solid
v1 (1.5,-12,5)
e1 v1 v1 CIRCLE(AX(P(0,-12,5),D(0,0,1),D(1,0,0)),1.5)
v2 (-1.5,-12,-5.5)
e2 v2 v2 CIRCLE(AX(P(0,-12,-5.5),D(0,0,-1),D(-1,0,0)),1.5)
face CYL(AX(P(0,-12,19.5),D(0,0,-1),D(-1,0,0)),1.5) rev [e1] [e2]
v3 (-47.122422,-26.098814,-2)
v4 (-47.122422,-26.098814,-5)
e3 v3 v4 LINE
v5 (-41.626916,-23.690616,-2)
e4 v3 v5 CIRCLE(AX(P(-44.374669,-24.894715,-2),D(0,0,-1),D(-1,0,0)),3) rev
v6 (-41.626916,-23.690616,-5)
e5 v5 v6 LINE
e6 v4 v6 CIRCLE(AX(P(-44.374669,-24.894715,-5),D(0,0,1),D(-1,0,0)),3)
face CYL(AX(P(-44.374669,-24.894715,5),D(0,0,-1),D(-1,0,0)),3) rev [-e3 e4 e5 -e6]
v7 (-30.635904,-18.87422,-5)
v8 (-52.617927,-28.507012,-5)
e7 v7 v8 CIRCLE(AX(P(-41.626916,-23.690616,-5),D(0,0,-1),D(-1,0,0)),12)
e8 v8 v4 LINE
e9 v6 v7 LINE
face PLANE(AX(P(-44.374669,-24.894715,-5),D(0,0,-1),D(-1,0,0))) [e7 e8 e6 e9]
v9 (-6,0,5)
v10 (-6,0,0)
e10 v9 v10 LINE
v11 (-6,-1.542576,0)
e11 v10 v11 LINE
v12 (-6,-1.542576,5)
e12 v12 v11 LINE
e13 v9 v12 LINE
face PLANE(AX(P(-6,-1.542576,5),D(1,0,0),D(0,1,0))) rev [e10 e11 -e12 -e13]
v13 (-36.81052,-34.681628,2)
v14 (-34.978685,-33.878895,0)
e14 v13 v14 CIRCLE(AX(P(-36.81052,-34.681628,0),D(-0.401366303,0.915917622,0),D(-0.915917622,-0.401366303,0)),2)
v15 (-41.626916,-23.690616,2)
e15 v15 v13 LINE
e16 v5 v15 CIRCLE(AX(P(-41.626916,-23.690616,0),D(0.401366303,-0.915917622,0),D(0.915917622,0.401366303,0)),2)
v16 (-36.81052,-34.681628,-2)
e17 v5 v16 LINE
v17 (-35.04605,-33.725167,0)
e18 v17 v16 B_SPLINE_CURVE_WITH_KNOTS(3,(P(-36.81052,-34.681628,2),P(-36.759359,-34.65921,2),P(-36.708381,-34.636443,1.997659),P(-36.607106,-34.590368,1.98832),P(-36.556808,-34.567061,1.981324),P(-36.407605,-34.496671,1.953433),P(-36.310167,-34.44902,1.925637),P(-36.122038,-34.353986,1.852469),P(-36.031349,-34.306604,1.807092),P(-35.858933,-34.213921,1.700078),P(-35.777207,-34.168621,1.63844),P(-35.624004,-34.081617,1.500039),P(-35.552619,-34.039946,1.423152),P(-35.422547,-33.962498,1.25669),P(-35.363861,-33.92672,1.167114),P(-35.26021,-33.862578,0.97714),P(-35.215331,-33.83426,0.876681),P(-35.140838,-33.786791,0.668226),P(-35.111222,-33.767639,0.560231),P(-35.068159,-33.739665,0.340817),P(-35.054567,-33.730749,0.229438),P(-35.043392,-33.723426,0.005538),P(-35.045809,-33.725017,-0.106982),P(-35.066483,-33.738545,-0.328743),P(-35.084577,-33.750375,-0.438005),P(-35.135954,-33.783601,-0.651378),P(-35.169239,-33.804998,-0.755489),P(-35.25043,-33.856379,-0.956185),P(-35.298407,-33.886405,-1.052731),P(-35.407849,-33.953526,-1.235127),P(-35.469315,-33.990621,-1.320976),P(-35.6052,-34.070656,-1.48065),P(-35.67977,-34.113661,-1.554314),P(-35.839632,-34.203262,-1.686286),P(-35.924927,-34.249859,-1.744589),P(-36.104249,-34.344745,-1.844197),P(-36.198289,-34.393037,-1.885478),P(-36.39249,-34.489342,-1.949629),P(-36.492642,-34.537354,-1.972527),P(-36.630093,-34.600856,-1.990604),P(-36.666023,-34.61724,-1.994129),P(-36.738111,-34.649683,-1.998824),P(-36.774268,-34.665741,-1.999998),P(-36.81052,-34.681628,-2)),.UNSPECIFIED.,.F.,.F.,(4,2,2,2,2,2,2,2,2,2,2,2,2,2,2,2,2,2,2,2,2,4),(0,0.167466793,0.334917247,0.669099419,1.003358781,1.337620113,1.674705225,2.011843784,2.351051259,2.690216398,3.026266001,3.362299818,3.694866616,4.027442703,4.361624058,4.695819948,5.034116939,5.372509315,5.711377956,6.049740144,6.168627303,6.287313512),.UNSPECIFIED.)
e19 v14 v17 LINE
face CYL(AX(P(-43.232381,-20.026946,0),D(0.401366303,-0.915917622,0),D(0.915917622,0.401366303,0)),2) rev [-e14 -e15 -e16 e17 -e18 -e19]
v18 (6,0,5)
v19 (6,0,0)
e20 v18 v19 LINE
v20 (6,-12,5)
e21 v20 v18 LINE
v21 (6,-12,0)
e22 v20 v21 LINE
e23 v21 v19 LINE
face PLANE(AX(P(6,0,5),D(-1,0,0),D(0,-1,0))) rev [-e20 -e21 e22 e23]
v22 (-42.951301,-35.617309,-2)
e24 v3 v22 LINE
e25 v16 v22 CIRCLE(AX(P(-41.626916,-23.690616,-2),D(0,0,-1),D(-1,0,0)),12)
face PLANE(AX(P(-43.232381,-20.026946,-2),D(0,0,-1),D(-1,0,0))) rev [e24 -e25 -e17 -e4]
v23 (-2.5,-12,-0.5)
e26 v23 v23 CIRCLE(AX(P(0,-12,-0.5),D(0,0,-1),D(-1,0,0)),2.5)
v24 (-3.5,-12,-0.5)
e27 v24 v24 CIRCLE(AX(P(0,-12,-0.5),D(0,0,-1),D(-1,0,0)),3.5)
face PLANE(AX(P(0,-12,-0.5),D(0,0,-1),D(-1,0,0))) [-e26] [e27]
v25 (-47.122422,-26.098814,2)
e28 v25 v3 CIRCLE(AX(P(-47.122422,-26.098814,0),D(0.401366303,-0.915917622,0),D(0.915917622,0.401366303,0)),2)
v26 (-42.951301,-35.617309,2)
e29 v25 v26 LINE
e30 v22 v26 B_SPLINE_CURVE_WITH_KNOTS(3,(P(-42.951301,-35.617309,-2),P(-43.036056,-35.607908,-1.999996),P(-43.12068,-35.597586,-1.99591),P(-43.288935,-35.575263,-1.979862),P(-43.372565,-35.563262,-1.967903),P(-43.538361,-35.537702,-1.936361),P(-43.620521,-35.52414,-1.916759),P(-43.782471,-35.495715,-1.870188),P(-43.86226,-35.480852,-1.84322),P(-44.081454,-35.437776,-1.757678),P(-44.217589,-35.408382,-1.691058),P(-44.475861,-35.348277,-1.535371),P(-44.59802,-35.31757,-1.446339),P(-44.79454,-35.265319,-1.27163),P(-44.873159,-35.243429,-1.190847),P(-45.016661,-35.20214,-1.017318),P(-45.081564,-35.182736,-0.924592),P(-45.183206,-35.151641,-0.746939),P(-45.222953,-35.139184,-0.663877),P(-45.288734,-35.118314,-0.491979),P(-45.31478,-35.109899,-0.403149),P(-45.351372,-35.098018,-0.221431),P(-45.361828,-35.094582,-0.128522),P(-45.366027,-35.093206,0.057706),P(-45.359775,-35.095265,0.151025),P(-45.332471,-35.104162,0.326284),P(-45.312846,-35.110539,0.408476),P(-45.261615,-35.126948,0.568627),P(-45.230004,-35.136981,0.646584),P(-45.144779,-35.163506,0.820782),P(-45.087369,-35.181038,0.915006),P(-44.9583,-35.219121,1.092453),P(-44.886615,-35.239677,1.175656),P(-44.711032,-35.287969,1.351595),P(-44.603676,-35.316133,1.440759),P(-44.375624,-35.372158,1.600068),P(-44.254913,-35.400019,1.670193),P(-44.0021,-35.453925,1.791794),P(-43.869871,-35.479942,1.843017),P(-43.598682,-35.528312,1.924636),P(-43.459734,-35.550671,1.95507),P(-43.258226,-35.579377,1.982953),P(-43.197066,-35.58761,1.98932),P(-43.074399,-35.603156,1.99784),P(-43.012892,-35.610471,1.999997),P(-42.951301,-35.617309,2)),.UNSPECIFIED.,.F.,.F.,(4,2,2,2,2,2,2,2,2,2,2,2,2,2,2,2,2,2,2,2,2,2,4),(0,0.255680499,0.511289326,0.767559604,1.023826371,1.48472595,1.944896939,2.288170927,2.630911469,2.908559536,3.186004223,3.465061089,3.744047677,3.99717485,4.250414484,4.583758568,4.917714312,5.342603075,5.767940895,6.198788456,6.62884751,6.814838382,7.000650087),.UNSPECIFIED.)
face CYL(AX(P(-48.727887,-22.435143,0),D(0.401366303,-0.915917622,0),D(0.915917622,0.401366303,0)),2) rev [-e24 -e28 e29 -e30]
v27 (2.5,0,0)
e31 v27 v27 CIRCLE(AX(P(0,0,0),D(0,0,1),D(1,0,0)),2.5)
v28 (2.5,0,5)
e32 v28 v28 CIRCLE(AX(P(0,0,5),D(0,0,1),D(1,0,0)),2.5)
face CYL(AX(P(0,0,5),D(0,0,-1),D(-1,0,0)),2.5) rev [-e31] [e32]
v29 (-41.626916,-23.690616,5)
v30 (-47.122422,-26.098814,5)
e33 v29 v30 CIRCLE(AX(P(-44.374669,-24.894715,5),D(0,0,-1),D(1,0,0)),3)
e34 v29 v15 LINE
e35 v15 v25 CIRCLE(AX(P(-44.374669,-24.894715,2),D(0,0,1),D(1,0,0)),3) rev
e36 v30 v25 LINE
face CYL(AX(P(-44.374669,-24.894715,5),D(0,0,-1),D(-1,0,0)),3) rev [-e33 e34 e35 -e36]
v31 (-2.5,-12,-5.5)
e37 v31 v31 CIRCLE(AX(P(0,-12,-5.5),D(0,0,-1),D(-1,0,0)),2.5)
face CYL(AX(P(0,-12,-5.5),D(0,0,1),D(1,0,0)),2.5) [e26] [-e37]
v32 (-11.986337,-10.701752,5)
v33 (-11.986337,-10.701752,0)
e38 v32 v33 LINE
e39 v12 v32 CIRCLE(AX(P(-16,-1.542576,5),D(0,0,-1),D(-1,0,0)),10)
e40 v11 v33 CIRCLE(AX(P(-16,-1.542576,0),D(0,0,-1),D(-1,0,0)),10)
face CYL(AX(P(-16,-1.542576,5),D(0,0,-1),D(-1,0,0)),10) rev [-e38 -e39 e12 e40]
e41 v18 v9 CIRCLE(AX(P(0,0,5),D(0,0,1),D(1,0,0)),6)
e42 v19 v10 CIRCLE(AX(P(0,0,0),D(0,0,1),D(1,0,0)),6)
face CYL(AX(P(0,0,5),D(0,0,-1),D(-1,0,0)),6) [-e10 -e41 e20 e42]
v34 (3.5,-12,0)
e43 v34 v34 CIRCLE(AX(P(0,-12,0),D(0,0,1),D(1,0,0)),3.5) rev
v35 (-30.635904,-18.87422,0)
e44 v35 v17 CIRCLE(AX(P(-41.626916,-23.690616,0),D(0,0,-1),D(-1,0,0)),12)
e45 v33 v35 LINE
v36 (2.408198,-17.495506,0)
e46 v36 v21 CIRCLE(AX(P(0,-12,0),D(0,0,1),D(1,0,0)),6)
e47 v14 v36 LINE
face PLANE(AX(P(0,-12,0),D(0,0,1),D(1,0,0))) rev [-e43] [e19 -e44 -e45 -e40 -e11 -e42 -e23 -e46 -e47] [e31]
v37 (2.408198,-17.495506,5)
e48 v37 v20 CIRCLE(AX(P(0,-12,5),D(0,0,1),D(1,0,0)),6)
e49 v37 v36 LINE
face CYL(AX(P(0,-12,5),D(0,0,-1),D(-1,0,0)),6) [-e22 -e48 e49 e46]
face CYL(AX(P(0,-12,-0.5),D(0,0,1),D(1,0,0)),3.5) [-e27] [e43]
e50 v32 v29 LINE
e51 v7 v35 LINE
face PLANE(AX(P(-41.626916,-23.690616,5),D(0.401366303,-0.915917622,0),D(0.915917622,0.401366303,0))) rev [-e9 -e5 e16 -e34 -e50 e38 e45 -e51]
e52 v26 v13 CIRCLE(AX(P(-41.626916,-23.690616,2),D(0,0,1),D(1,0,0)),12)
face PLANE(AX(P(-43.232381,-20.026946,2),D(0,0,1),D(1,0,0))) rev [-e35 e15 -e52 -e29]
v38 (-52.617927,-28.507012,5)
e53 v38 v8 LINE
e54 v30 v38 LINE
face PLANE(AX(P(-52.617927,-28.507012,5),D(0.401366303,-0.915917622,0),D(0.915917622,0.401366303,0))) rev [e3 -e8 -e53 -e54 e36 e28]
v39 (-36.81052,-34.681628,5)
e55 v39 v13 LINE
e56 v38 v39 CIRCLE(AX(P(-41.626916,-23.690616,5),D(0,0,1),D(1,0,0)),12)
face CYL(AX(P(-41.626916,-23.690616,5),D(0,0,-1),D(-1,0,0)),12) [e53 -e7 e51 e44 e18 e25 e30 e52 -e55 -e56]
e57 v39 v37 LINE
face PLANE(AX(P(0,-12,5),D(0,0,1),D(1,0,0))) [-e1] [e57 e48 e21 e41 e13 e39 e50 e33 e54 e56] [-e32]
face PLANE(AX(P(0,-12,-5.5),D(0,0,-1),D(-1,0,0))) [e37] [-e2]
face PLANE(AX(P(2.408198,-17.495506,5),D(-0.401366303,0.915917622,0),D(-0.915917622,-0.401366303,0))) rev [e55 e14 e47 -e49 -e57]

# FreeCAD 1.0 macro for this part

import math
import FreeCAD as App
import Part
import Sketcher
Q = App.Units.Quantity

doc = App.newDocument("Part")
body = doc.addObject("PartDesign::Body", "Body")

sketch1 = body.newObject("Sketcher::SketchObject", "Sketch")
sketch1.AttachmentSupport = (doc.getObject("XY_Plane"), [""])
sketch1.MapMode = "FlatFace"
sketch1.addGeometry(Part.LineSegment(App.Vector(6, -12, 0), App.Vector(6, 0, 0)), False)
sketch1.addGeometry(Part.ArcOfCircle(Part.Circle(App.Vector(0, 0, 0), App.Vector(0, 0, 1), 6), math.radians(0), math.radians(180)), False)
sketch1.addGeometry(Part.LineSegment(App.Vector(-6, 0, 0), App.Vector(-6, -1.5, 0)), False)
sketch1.addGeometry(Part.ArcOfCircle(Part.Circle(App.Vector(-16, -1.5, 0), App.Vector(0, 0, 1), 10), math.radians(-66), math.radians(0)), False)
sketch1.addGeometry(Part.LineSegment(App.Vector(-12, -10.7, 0), App.Vector(-41.6, -23.7, 0)), False)
sketch1.addGeometry(Part.ArcOfCircle(Part.Circle(App.Vector(-44.4, -24.9, 0), App.Vector(0, 0, 1), 3), math.radians(-156), math.radians(24)), False)
sketch1.addGeometry(Part.LineSegment(App.Vector(-47.1, -26.1, 0), App.Vector(-52.6, -28.5, 0)), False)
sketch1.addGeometry(Part.ArcOfCircle(Part.Circle(App.Vector(-41.6, -23.7, 0), App.Vector(0, 0, 1), 12), math.radians(-156), math.radians(-66)), False)
sketch1.addGeometry(Part.LineSegment(App.Vector(-36.8, -34.7, 0), App.Vector(2.4, -17.5, 0)), False)
sketch1.addGeometry(Part.ArcOfCircle(Part.Circle(App.Vector(0, -12, 0), App.Vector(0, 0, 1), 6), math.radians(-66), math.radians(0)), False)
sketch1.addGeometry(Part.Circle(App.Vector(0, 0, 0), App.Vector(0, 0, 1), 2.5), False)
sketch1.addConstraint(Sketcher.Constraint("Tangent", 0, 2, 1, 1))
sketch1.addConstraint(Sketcher.Constraint("Tangent", 1, 2, 2, 1))
sketch1.addConstraint(Sketcher.Constraint("Tangent", 2, 2, 3, 2))
sketch1.addConstraint(Sketcher.Constraint("Tangent", 3, 1, 4, 1))
sketch1.addConstraint(Sketcher.Constraint("Coincident", 4, 2, 5, 2))
sketch1.addConstraint(Sketcher.Constraint("Coincident", 5, 1, 6, 1))
sketch1.addConstraint(Sketcher.Constraint("Coincident", 6, 2, 7, 1))
sketch1.addConstraint(Sketcher.Constraint("Tangent", 7, 2, 8, 1))
sketch1.addConstraint(Sketcher.Constraint("Tangent", 8, 2, 9, 1))
sketch1.addConstraint(Sketcher.Constraint("Tangent", 9, 2, 0, 1))
sketch1.addConstraint(Sketcher.Constraint("Vertical", 0))
sketch1.addConstraint(Sketcher.Constraint("Vertical", 2))
sketch1.addConstraint(Sketcher.Constraint("Coincident", 1, 3, -1, 1))
sketch1.addConstraint(Sketcher.Constraint("Coincident", 10, 3, -1, 1))
sketch1.addConstraint(Sketcher.Constraint("Coincident", 4, 2, 7, 3))
sketch1.addConstraint(Sketcher.Constraint("Equal", 1, 9))
sketch1.addConstraint(Sketcher.Constraint("Parallel", 4, 6))
sketch1.addConstraint(Sketcher.Constraint("Parallel", 6, 8))
sketch1.addConstraint(Sketcher.Constraint("Diameter", 10, Q("5 mm")))
sketch1.addConstraint(Sketcher.Constraint("Radius", 1, Q("6 mm")))
sketch1.addConstraint(Sketcher.Constraint("Radius", 3, Q("10 mm")))
sketch1.addConstraint(Sketcher.Constraint("Radius", 5, Q("3 mm")))
sketch1.addConstraint(Sketcher.Constraint("Radius", 7, Q("12 mm")))
sketch1.addConstraint(Sketcher.Constraint("DistanceY", 0, 1, 0, 2, Q("12 mm")))
sketch1.addConstraint(Sketcher.Constraint("DistanceY", 5, 3, 7, 3, Q("1.204099 mm")))
sketch1.addConstraint(Sketcher.Constraint("DistanceY", 5, 1, 5, 3, Q("1.204099 mm")))
sketch1.addConstraint(Sketcher.Constraint("DistanceX", 5, 1, 7, 2, Q("10.311901 mm")))
sketch1.addConstraint(Sketcher.Constraint("Distance", 4, Q("32.361621 mm")))
pad1 = body.newObject("PartDesign::Pad", "Pad")
pad1.Profile = sketch1
pad1.Length = 5

sketch2 = body.newObject("Sketcher::SketchObject", "Sketch001")
sketch2.AttachmentSupport = (doc.getObject("XY_Plane"), [""])
sketch2.MapMode = "FlatFace"
sketch2.addGeometry(Part.Circle(App.Vector(0, -12, 0), App.Vector(0, 0, 1), 2.5), False)
sketch2.addConstraint(Sketcher.Constraint("PointOnObject", 0, 3, -2))
sketch2.addConstraint(Sketcher.Constraint("Diameter", 0, Q("5 mm")))
sketch2.addConstraint(Sketcher.Constraint("DistanceY", 0, 3, -1, 1, Q("12 mm")))
pad2 = body.newObject("PartDesign::Pad", "Pad001")
pad2.Profile = sketch2
pad2.Length = 5.5
pad2.Reversed = True

sketch3 = body.newObject("Sketcher::SketchObject", "Sketch002")
sketch3.AttachmentSupport = (doc.getObject("XY_Plane"), [""])
sketch3.MapMode = "FlatFace"
sketch3.AttachmentOffset = App.Placement(App.Vector(0, 0, -5.5), App.Rotation())
sketch3.addGeometry(Part.Circle(App.Vector(0, -12, 0), App.Vector(0, 0, 1), 1.5), False)
sketch3.addConstraint(Sketcher.Constraint("PointOnObject", 0, 3, -2))
sketch3.addConstraint(Sketcher.Constraint("Diameter", 0, Q("3 mm")))
sketch3.addConstraint(Sketcher.Constraint("DistanceY", 0, 3, -1, 1, Q("12 mm")))
pocket1 = body.newObject("PartDesign::Pocket", "Pocket")
pocket1.Profile = sketch3
pocket1.Length = 25
pocket1.Reversed = True

sketch4 = body.newObject("Sketcher::SketchObject", "Sketch003")
sketch4.AttachmentSupport = (doc.getObject("XY_Plane"), [""])
sketch4.MapMode = "FlatFace"
sketch4.AttachmentOffset = App.Placement(App.Vector(0, 0, -5), App.Rotation())
sketch4.addGeometry(Part.LineSegment(App.Vector(-41.6, -23.7, 0), App.Vector(-30.6, -18.9, 0)), False)
sketch4.addGeometry(Part.ArcOfCircle(Part.Circle(App.Vector(-41.6, -23.7, 0), App.Vector(0, 0, 1), 12), math.radians(-156), math.radians(24)), False)
sketch4.addGeometry(Part.LineSegment(App.Vector(-52.6, -28.5, 0), App.Vector(-47.1, -26.1, 0)), False)
sketch4.addGeometry(Part.ArcOfCircle(Part.Circle(App.Vector(-44.4, -24.9, 0), App.Vector(0, 0, 1), 3), math.radians(-156), math.radians(24)), False)
sketch4.addConstraint(Sketcher.Constraint("Coincident", 0, 2, 1, 2))
sketch4.addConstraint(Sketcher.Constraint("Coincident", 1, 1, 2, 1))
sketch4.addConstraint(Sketcher.Constraint("Coincident", 2, 2, 3, 1))
sketch4.addConstraint(Sketcher.Constraint("Coincident", 3, 2, 0, 1))
sketch4.addConstraint(Sketcher.Constraint("Coincident", 3, 2, 1, 3))
sketch4.addConstraint(Sketcher.Constraint("Parallel", 0, 2))
sketch4.addConstraint(Sketcher.Constraint("Radius", 1, Q("12 mm")))
sketch4.addConstraint(Sketcher.Constraint("Radius", 3, Q("3 mm")))
sketch4.addConstraint(Sketcher.Constraint("DistanceY", 3, 3, 1, 3, Q("1.204099 mm")))
sketch4.addConstraint(Sketcher.Constraint("DistanceY", 2, 2, 3, 3, Q("1.204099 mm")))
sketch4.addConstraint(Sketcher.Constraint("DistanceX", 3, 3, -1, 1, Q("44.374669 mm")))
sketch4.addConstraint(Sketcher.Constraint("DistanceY", 0, 2, -1, 1, Q("18.87422 mm")))
sketch4.addConstraint(Sketcher.Constraint("DistanceY", 1, 1, -1, 1, Q("28.507012 mm")))
pad3 = body.newObject("PartDesign::Pad", "Pad002")
pad3.Profile = sketch4
pad3.Length = 5

sketch5 = body.newObject("Sketcher::SketchObject", "Sketch004")
sketch5.Placement = App.Placement(App.Vector(6.819619, -15.562367, 0), App.Rotation(App.Vector(0.915917622, 0.401366303, 0), App.Vector(0, 0, 0.999999999), App.Vector(0.401366303, -0.915917622, 0), "ZXY"))
sketch5.addGeometry(Part.LineSegment(App.Vector(-53.6, -2, 0), App.Vector(-47.6, -2, 0)), False)
sketch5.addGeometry(Part.ArcOfCircle(Part.Circle(App.Vector(-47.6, 0, 0), App.Vector(0, 0, 1), 2), math.radians(-90), math.radians(90)), False)
sketch5.addGeometry(Part.LineSegment(App.Vector(-47.6, 2, 0), App.Vector(-53.6, 2, 0)), False)
sketch5.addGeometry(Part.ArcOfCircle(Part.Circle(App.Vector(-53.6, 0, 0), App.Vector(0, 0, 1), 2), math.radians(90), math.radians(270)), False)
sketch5.addConstraint(Sketcher.Constraint("Tangent", 0, 2, 1, 1))
sketch5.addConstraint(Sketcher.Constraint("Tangent", 1, 2, 2, 1))
sketch5.addConstraint(Sketcher.Constraint("Tangent", 2, 2, 3, 1))
sketch5.addConstraint(Sketcher.Constraint("Tangent", 3, 2, 0, 1))
sketch5.addConstraint(Sketcher.Constraint("Horizontal", 0))
sketch5.addConstraint(Sketcher.Constraint("Horizontal", 2))
sketch5.addConstraint(Sketcher.Constraint("PointOnObject", 1, 3, -1))
sketch5.addConstraint(Sketcher.Constraint("Radius", 1, Q("2 mm")))
sketch5.addConstraint(Sketcher.Constraint("DistanceX", 0, 1, 0, 2, Q("6 mm")))
sketch5.addConstraint(Sketcher.Constraint("DistanceX", 1, 3, -1, 1, Q("47.635441 mm")))
pocket2 = body.newObject("PartDesign::Pocket", "Pocket001")
pocket2.Profile = sketch5
pocket2.Length = 16

sketch6 = body.newObject("Sketcher::SketchObject", "Sketch005")
sketch6.AttachmentSupport = (doc.getObject("XY_Plane"), [""])
sketch6.MapMode = "FlatFace"
sketch6.addGeometry(Part.Circle(App.Vector(0, -12, 0), App.Vector(0, 0, 1), 3.5), False)
sketch6.addGeometry(Part.Circle(App.Vector(0, -12, 0), App.Vector(0, 0, 1), 2.5), False)
sketch6.addConstraint(Sketcher.Constraint("Coincident", 1, 3, 0, 3))
sketch6.addConstraint(Sketcher.Constraint("PointOnObject", 0, 3, -2))
sketch6.addConstraint(Sketcher.Constraint("Diameter", 0, Q("7 mm")))
sketch6.addConstraint(Sketcher.Constraint("Diameter", 1, Q("5 mm")))
sketch6.addConstraint(Sketcher.Constraint("DistanceY", 0, 3, -1, 1, Q("12 mm")))
pad4 = body.newObject("PartDesign::Pad", "Pad003")
pad4.Profile = sketch6
pad4.Length = 0.5
pad4.Reversed = True

doc.recompute()
